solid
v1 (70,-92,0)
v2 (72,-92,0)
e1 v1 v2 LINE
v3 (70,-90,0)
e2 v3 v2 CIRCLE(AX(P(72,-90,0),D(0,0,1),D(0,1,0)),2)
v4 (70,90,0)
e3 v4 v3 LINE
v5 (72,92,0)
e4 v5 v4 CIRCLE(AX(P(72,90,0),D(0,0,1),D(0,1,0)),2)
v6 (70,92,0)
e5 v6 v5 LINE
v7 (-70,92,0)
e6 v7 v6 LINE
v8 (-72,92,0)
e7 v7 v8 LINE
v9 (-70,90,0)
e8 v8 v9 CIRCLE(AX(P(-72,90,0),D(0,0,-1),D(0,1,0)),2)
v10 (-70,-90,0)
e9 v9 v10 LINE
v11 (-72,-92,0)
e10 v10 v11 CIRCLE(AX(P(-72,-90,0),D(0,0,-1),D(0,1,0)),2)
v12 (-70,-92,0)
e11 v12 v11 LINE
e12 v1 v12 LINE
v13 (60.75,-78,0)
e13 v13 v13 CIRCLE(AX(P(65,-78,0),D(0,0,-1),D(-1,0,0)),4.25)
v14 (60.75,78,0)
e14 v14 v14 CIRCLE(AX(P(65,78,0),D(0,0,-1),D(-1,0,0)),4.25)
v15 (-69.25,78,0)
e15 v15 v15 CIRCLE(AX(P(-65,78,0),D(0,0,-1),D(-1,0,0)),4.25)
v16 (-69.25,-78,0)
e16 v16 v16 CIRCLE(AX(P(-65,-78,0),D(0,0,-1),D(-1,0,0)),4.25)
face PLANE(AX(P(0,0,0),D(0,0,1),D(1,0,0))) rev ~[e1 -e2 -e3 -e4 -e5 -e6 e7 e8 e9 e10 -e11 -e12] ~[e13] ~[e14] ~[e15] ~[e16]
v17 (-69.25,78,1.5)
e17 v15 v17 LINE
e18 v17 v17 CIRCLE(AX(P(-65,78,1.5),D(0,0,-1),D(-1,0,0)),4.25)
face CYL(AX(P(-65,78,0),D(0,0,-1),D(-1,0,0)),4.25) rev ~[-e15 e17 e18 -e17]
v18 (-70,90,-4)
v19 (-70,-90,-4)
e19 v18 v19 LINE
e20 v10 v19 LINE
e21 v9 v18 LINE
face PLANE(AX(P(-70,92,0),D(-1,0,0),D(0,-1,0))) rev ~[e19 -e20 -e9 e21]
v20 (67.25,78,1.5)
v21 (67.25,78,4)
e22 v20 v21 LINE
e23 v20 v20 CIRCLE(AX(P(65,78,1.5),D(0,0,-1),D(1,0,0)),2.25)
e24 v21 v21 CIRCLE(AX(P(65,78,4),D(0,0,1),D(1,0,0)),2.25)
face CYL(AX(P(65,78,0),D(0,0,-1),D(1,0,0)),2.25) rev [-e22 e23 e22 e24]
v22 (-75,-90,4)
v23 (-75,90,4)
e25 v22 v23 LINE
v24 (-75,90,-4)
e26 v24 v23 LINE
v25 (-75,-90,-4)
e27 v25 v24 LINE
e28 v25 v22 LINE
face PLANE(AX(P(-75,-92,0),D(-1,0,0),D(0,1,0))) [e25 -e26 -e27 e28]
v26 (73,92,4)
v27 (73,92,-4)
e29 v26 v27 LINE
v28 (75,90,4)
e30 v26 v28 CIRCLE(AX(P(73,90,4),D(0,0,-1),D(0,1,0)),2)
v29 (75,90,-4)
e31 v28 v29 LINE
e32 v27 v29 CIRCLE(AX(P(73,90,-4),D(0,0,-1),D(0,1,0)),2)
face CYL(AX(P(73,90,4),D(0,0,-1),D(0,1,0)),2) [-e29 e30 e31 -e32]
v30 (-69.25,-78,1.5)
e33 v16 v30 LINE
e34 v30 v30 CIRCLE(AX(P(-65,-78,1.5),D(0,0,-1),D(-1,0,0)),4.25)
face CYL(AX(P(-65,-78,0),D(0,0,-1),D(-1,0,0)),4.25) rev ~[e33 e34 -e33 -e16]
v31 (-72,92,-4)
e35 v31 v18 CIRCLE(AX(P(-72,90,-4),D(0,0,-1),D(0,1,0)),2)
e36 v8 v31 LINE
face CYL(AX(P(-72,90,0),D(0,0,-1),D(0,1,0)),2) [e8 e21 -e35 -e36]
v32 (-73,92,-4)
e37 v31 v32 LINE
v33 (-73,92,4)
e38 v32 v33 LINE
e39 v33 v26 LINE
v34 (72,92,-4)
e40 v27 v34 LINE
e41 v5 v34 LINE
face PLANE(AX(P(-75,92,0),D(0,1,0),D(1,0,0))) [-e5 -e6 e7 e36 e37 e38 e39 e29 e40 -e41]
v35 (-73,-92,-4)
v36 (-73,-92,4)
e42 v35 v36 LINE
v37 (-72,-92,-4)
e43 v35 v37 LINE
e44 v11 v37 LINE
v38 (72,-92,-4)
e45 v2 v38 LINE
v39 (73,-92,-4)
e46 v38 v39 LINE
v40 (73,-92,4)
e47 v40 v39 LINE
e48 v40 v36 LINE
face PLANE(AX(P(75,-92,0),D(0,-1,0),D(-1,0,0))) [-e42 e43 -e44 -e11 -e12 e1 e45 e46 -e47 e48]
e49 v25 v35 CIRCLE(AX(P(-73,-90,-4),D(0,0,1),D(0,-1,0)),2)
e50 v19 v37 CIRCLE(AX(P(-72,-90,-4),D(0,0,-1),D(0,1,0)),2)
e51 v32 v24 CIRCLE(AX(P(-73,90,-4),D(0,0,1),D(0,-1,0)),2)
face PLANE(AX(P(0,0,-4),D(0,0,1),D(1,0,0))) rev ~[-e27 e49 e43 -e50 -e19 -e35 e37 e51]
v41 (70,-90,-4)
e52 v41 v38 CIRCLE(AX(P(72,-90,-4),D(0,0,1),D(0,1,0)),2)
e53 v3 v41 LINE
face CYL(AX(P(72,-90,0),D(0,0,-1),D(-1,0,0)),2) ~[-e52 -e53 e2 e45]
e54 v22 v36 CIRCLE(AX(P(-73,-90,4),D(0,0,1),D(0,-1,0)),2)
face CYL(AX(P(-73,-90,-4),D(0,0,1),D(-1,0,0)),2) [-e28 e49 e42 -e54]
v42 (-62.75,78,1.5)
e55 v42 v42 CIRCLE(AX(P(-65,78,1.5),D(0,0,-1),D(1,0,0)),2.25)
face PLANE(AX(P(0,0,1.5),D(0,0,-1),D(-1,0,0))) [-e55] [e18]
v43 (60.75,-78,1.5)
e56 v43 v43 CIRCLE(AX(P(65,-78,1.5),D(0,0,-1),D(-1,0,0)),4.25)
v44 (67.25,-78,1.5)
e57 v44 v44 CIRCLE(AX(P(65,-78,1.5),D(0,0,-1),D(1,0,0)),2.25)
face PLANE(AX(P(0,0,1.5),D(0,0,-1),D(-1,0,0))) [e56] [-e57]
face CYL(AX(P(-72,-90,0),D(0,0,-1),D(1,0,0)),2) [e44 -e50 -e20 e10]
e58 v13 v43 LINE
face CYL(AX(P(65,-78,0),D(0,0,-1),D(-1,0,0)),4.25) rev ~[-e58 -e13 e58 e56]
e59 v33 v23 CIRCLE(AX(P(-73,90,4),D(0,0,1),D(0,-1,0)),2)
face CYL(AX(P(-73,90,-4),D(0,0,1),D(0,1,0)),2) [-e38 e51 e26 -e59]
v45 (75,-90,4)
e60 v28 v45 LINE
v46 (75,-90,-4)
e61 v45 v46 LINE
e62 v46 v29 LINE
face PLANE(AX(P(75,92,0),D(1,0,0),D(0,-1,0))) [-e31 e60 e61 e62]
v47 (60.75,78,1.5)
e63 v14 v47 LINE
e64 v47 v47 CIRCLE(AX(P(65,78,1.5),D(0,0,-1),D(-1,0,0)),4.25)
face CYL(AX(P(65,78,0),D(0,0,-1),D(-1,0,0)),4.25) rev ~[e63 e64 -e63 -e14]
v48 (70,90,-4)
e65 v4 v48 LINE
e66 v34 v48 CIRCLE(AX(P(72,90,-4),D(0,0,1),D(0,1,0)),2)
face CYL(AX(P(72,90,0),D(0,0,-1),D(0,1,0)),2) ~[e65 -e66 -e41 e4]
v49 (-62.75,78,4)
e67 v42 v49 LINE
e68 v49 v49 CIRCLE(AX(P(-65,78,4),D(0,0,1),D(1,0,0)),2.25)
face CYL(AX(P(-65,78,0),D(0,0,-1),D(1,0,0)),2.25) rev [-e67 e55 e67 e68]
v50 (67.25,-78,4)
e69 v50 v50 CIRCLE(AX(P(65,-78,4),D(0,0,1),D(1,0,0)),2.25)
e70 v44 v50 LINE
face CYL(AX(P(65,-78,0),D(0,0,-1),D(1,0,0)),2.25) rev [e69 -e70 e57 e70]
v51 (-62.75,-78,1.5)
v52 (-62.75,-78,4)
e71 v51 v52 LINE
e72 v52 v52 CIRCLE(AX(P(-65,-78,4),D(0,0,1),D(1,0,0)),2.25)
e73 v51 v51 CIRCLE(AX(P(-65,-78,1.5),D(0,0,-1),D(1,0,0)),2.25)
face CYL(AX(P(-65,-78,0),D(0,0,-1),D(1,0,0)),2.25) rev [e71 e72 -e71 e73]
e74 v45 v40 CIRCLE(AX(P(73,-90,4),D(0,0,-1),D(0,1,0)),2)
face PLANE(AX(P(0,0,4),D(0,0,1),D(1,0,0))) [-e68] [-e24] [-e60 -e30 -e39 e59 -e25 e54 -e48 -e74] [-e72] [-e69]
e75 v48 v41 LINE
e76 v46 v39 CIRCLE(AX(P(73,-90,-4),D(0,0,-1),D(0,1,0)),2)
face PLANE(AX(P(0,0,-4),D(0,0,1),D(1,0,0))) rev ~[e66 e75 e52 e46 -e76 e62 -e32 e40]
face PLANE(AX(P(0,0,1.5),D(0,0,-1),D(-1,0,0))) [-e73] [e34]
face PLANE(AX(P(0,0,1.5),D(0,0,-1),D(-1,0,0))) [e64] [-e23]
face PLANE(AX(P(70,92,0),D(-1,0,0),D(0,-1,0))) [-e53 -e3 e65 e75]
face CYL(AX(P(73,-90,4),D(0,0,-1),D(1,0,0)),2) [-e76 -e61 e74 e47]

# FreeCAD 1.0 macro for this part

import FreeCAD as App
import Part
import Sketcher
from FreeCAD import Vector
Q = App.Units.Quantity


def edges_at(feature, points):
    """Names of the edges that pass closest to the given points."""
    edges = feature.Shape.Edges
    near = lambda p: min(range(len(edges)), key=lambda i: edges[i].distToShape(Part.Vertex(*p))[0])
    return sorted({f"Edge{near(p) + 1}" for p in points})


def add_polygon(sketch, points):
    """Adds a closed chain of lines whose ends are joined by coincident constraints."""
    first, n = sketch.GeometryCount, len(points)
    for a, b in zip(points, points[1:] + points[:1]):
        sketch.addGeometry(Part.LineSegment(App.Vector(*a, 0), App.Vector(*b, 0)), False)
    for i in range(n):
        sketch.addConstraint(Sketcher.Constraint("Coincident", first + i, 2, first + (i + 1) % n, 1))

doc = App.newDocument("Part")
body = doc.addObject("PartDesign::Body", "Body")

# Sketch on XY plane
sketch1 = body.newObject("Sketcher::SketchObject", "Sketch")
sketch1.AttachmentSupport = (doc.getObject("XY_Plane"), [""])
sketch1.MapMode = "FlatFace"
add_polygon(sketch1, [(75, 92), (-75, 92), (-75, -92), (75, -92)])  # lines 0-3
sketch1.addGeometry(Part.Circle(Vector(-65, -78, 0), Vector(0, 0, 1), 2.2), False)  # 4
sketch1.addGeometry(Part.Circle(Vector(65, -78, 0), Vector(0, 0, 1), 2.2), False)  # 5
sketch1.addGeometry(Part.Circle(Vector(-65, 78, 0), Vector(0, 0, 1), 2.2), False)  # 6
sketch1.addGeometry(Part.Circle(Vector(65, 78, 0), Vector(0, 0, 1), 2.2), False)  # 7
sketch1.addConstraint(Sketcher.Constraint("Horizontal", 0))
sketch1.addConstraint(Sketcher.Constraint("Vertical", 1))
sketch1.addConstraint(Sketcher.Constraint("Horizontal", 2))
sketch1.addConstraint(Sketcher.Constraint("Vertical", 3))
sketch1.addConstraint(Sketcher.Constraint("Equal", 4, 5))
sketch1.addConstraint(Sketcher.Constraint("Equal", 5, 6))
sketch1.addConstraint(Sketcher.Constraint("Equal", 6, 7))
sketch1.addConstraint(Sketcher.Constraint("Symmetric", 5, 3, 6, 3, -1, 1))
sketch1.addConstraint(Sketcher.Constraint("Symmetric", 4, 3, 7, 3, -1, 1))
sketch1.addConstraint(Sketcher.Constraint("Symmetric", 0, 2, 2, 2, -1, 1))
sketch1.addConstraint(Sketcher.Constraint("Symmetric", 4, 3, 5, 3, -2))
sketch1.addConstraint(Sketcher.Constraint("Diameter", 4, Q("4.5 mm")))
sketch1.addConstraint(Sketcher.Constraint("DistanceX", 0, 2, 0, 1, Q("150 mm")))
sketch1.addConstraint(Sketcher.Constraint("DistanceY", 1, 2, 1, 1, Q("184 mm")))
sketch1.addConstraint(Sketcher.Constraint("DistanceY", 4, 3, -1, 1, Q("78 mm")))
sketch1.addConstraint(Sketcher.Constraint("DistanceX", 4, 3, 5, 3, Q("130 mm")))
pad1 = body.newObject("PartDesign::Pad", "Pad")
pad1.Profile = sketch1
pad1.Length = 4

# Sketch on XY plane
sketch2 = body.newObject("Sketcher::SketchObject", "Sketch001")
sketch2.AttachmentSupport = (doc.getObject("XY_Plane"), [""])
sketch2.MapMode = "FlatFace"
add_polygon(sketch2, [(75, -92), (75, 92), (70, 92), (70, -92)])  # lines 0-3
add_polygon(sketch2, [(-70, -92), (-70, 92), (-75, 92), (-75, -92)])  # lines 4-7
sketch2.addConstraint(Sketcher.Constraint("Vertical", 0))
sketch2.addConstraint(Sketcher.Constraint("Horizontal", 1))
sketch2.addConstraint(Sketcher.Constraint("Vertical", 2))
sketch2.addConstraint(Sketcher.Constraint("Horizontal", 3))
sketch2.addConstraint(Sketcher.Constraint("Vertical", 4))
sketch2.addConstraint(Sketcher.Constraint("Horizontal", 5))
sketch2.addConstraint(Sketcher.Constraint("Vertical", 6))
sketch2.addConstraint(Sketcher.Constraint("Horizontal", 7))
sketch2.addConstraint(Sketcher.Constraint("Symmetric", 2, 2, 4, 2, -1, 1))
sketch2.addConstraint(Sketcher.Constraint("Symmetric", 0, 2, 6, 2, -1, 1))
sketch2.addConstraint(Sketcher.Constraint("Horizontal", 1, 2, 4, 2))
sketch2.addConstraint(Sketcher.Constraint("DistanceX", 1, 2, 1, 1, Q("5 mm")))
sketch2.addConstraint(Sketcher.Constraint("DistanceY", 0, 1, 0, 2, Q("184 mm")))
sketch2.addConstraint(Sketcher.Constraint("DistanceX", -1, 1, 0, 2, Q("75 mm")))
pad2 = body.newObject("PartDesign::Pad", "Pad001")
pad2.Profile = sketch2
pad2.Length = 4
pad2.Reversed = True

# Sketch on XY plane
sketch3 = body.newObject("Sketcher::SketchObject", "Sketch002")
sketch3.AttachmentSupport = (doc.getObject("XY_Plane"), [""])
sketch3.MapMode = "FlatFace"
sketch3.addGeometry(Part.Circle(Vector(-65, 78, 0), Vector(0, 0, 1), 4.2), False)
sketch3.addGeometry(Part.Circle(Vector(-65, -78, 0), Vector(0, 0, 1), 4.2), False)
sketch3.addGeometry(Part.Circle(Vector(65, 78, 0), Vector(0, 0, 1), 4.2), False)
sketch3.addGeometry(Part.Circle(Vector(65, -78, 0), Vector(0, 0, 1), 4.2), False)
sketch3.addConstraint(Sketcher.Constraint("Equal", 0, 1))
sketch3.addConstraint(Sketcher.Constraint("Equal", 1, 2))
sketch3.addConstraint(Sketcher.Constraint("Equal", 2, 3))
sketch3.addConstraint(Sketcher.Constraint("Symmetric", 1, 3, 2, 3, -1, 1))
sketch3.addConstraint(Sketcher.Constraint("Symmetric", 0, 3, 3, 3, -1, 1))
sketch3.addConstraint(Sketcher.Constraint("Symmetric", 0, 3, 2, 3, -2))
sketch3.addConstraint(Sketcher.Constraint("Diameter", 0, Q("8.5 mm")))
sketch3.addConstraint(Sketcher.Constraint("DistanceX", 0, 3, -1, 1, Q("65 mm")))
sketch3.addConstraint(Sketcher.Constraint("DistanceY", -1, 1, 0, 3, Q("78 mm")))
pocket1 = body.newObject("PartDesign::Pocket", "Pocket")
pocket1.Profile = sketch3
pocket1.Length = 1.5
pocket1.Reversed = True
doc.recompute()

fillet = body.newObject("PartDesign::Fillet", "Fillet")
fillet.Base = (pocket1, edges_at(pocket1, [
    (-70, 92, -2),
    (-75, 92, 0),
    (70, 92, -2),
    (75, 92, 0),
    (75, -92, 0),
    (70, -92, -2),
    (-70, -92, -2),
    (-75, -92, 0),
]))
fillet.Radius = 2

doc.recompute()
